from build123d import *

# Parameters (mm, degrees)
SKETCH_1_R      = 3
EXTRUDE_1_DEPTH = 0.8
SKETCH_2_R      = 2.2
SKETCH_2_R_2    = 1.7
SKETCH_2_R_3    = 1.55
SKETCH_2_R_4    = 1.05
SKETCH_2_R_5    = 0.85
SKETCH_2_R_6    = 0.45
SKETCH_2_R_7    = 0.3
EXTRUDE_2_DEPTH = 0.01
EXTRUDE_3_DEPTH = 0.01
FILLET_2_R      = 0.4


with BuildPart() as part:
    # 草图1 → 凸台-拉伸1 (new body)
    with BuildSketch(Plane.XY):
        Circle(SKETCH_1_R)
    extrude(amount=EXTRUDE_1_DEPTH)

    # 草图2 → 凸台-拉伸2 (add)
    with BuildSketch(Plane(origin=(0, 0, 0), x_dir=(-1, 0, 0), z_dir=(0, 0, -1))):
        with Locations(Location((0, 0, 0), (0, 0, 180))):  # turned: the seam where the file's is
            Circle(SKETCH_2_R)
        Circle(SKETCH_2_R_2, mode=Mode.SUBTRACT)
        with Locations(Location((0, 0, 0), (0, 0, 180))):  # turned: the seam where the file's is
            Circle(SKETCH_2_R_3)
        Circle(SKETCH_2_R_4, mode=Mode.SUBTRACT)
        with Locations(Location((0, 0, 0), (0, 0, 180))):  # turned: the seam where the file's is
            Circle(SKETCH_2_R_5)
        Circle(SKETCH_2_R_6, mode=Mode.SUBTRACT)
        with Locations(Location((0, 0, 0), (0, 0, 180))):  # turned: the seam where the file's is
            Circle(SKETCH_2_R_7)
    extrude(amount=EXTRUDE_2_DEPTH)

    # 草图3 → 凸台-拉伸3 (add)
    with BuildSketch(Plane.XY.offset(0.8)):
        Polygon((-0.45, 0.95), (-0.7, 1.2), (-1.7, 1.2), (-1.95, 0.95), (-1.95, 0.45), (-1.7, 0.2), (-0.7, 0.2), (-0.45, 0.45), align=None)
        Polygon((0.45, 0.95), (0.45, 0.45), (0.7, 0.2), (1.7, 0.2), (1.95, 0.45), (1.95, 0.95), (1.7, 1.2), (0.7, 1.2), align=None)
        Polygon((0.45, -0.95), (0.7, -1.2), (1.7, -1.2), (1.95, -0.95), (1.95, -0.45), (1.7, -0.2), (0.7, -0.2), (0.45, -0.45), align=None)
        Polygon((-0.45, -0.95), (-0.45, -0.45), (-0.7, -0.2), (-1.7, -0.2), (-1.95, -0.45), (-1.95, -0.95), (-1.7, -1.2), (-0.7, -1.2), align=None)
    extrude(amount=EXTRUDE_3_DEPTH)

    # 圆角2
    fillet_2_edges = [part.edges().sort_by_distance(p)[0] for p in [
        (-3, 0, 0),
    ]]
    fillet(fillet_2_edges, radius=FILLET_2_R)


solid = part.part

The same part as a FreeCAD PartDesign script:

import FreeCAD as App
import Part
import Sketcher
Q = App.Units.Quantity


def edges_at(feature, points):
    """Names of the edges that pass closest to the given points."""
    edges = feature.Shape.Edges
    near = lambda p: min(range(len(edges)), key=lambda i: edges[i].distToShape(Part.Vertex(*p))[0])
    return sorted({f"Edge{near(p) + 1}" for p in points})

doc = App.newDocument("Part")
body = doc.addObject("PartDesign::Body", "Body")

# Sketch on XY plane
sketch1 = body.newObject("Sketcher::SketchObject", "Sketch")
sketch1.AttachmentSupport = (doc.getObject("XY_Plane"), [""])
sketch1.MapMode = "FlatFace"
sketch1.addGeometry(Part.Circle(App.Vector(0, 0, 0), App.Vector(0, 0, 1), 3), False)
sketch1.addConstraint(Sketcher.Constraint("Coincident", 0, 3, -1, 1))
sketch1.addConstraint(Sketcher.Constraint("Diameter", 0, Q("6 mm")))
pad1 = body.newObject("PartDesign::Pad", "Pad")
pad1.Profile = sketch1
pad1.Length = 0.8

# Sketch on XY plane
sketch2 = body.newObject("Sketcher::SketchObject", "Sketch001")
sketch2.AttachmentSupport = (doc.getObject("XY_Plane"), [""])
sketch2.MapMode = "FlatFace"
sketch2.addGeometry(Part.Circle(App.Vector(0, 0, 0), App.Vector(0, 0, 1), 2.2), False)
sketch2.addGeometry(Part.Circle(App.Vector(0, 0, 0), App.Vector(0, 0, 1), 1.7), False)
sketch2.addGeometry(Part.Circle(App.Vector(0, 0, 0), App.Vector(0, 0, 1), 1.55), False)
sketch2.addGeometry(Part.Circle(App.Vector(0, 0, 0), App.Vector(0, 0, 1), 1.05), False)
sketch2.addGeometry(Part.Circle(App.Vector(0, 0, 0), App.Vector(0, 0, 1), 0.85), False)
sketch2.addGeometry(Part.Circle(App.Vector(0, 0, 0), App.Vector(0, 0, 1), 0.45), False)
sketch2.addGeometry(Part.Circle(App.Vector(0, 0, 0), App.Vector(0, 0, 1), 0.3), False)
sketch2.addConstraint(Sketcher.Constraint("Coincident", 0, 3, -1, 1))
sketch2.addConstraint(Sketcher.Constraint("Coincident", 1, 3, -1, 1))
sketch2.addConstraint(Sketcher.Constraint("Coincident", 2, 3, -1, 1))
sketch2.addConstraint(Sketcher.Constraint("Coincident", 3, 3, -1, 1))
sketch2.addConstraint(Sketcher.Constraint("Coincident", 4, 3, -1, 1))
sketch2.addConstraint(Sketcher.Constraint("Coincident", 5, 3, -1, 1))
sketch2.addConstraint(Sketcher.Constraint("Coincident", 6, 3, -1, 1))
sketch2.addConstraint(Sketcher.Constraint("Diameter", 0, Q("4.4 mm")))
sketch2.addConstraint(Sketcher.Constraint("Diameter", 1, Q("3.4 mm")))
sketch2.addConstraint(Sketcher.Constraint("Diameter", 2, Q("3.1 mm")))
sketch2.addConstraint(Sketcher.Constraint("Diameter", 3, Q("2.1 mm")))
sketch2.addConstraint(Sketcher.Constraint("Diameter", 4, Q("1.7 mm")))
sketch2.addConstraint(Sketcher.Constraint("Diameter", 5, Q("0.9 mm")))
sketch2.addConstraint(Sketcher.Constraint("Diameter", 6, Q("0.6 mm")))
pad2 = body.newObject("PartDesign::Pad", "Pad001")
pad2.Profile = sketch2
pad2.Length = 0.01
pad2.Reversed = True

# Sketch on XY plane
sketch3 = body.newObject("Sketcher::SketchObject", "Sketch002")
sketch3.AttachmentSupport = (doc.getObject("XY_Plane"), [""])
sketch3.MapMode = "FlatFace"
sketch3.AttachmentOffset = App.Placement(App.Vector(0, 0, 0.8), App.Rotation())
sketch3.addGeometry(Part.LineSegment(App.Vector(-0.45, 0.95, 0), App.Vector(-0.7, 1.2, 0)), False)
sketch3.addGeometry(Part.LineSegment(App.Vector(-0.7, 1.2, 0), App.Vector(-1.7, 1.2, 0)), False)
sketch3.addGeometry(Part.LineSegment(App.Vector(-1.7, 1.2, 0), App.Vector(-1.95, 0.95, 0)), False)
sketch3.addGeometry(Part.LineSegment(App.Vector(-1.95, 0.95, 0), App.Vector(-1.95, 0.45, 0)), False)
sketch3.addGeometry(Part.LineSegment(App.Vector(-1.95, 0.45, 0), App.Vector(-1.7, 0.2, 0)), False)
sketch3.addGeometry(Part.LineSegment(App.Vector(-1.7, 0.2, 0), App.Vector(-0.7, 0.2, 0)), False)
sketch3.addGeometry(Part.LineSegment(App.Vector(-0.7, 0.2, 0), App.Vector(-0.45, 0.45, 0)), False)
sketch3.addGeometry(Part.LineSegment(App.Vector(-0.45, 0.45, 0), App.Vector(-0.45, 0.95, 0)), False)
sketch3.addGeometry(Part.LineSegment(App.Vector(0.45, 0.95, 0), App.Vector(0.45, 0.45, 0)), False)
sketch3.addGeometry(Part.LineSegment(App.Vector(0.45, 0.45, 0), App.Vector(0.7, 0.2, 0)), False)
sketch3.addGeometry(Part.LineSegment(App.Vector(0.7, 0.2, 0), App.Vector(1.7, 0.2, 0)), False)
sketch3.addGeometry(Part.LineSegment(App.Vector(1.7, 0.2, 0), App.Vector(1.95, 0.45, 0)), False)
sketch3.addGeometry(Part.LineSegment(App.Vector(1.95, 0.45, 0), App.Vector(1.95, 0.95, 0)), False)
sketch3.addGeometry(Part.LineSegment(App.Vector(1.95, 0.95, 0), App.Vector(1.7, 1.2, 0)), False)
sketch3.addGeometry(Part.LineSegment(App.Vector(1.7, 1.2, 0), App.Vector(0.7, 1.2, 0)), False)
sketch3.addGeometry(Part.LineSegment(App.Vector(0.7, 1.2, 0), App.Vector(0.45, 0.95, 0)), False)
sketch3.addGeometry(Part.LineSegment(App.Vector(0.45, -0.95, 0), App.Vector(0.7, -1.2, 0)), False)
sketch3.addGeometry(Part.LineSegment(App.Vector(0.7, -1.2, 0), App.Vector(1.7, -1.2, 0)), False)
sketch3.addGeometry(Part.LineSegment(App.Vector(1.7, -1.2, 0), App.Vector(1.95, -0.95, 0)), False)
sketch3.addGeometry(Part.LineSegment(App.Vector(1.95, -0.95, 0), App.Vector(1.95, -0.45, 0)), False)
sketch3.addGeometry(Part.LineSegment(App.Vector(1.95, -0.45, 0), App.Vector(1.7, -0.2, 0)), False)
sketch3.addGeometry(Part.LineSegment(App.Vector(1.7, -0.2, 0), App.Vector(0.7, -0.2, 0)), False)
sketch3.addGeometry(Part.LineSegment(App.Vector(0.7, -0.2, 0), App.Vector(0.45, -0.45, 0)), False)
sketch3.addGeometry(Part.LineSegment(App.Vector(0.45, -0.45, 0), App.Vector(0.45, -0.95, 0)), False)
sketch3.addGeometry(Part.LineSegment(App.Vector(-0.45, -0.95, 0), App.Vector(-0.45, -0.45, 0)), False)
sketch3.addGeometry(Part.LineSegment(App.Vector(-0.45, -0.45, 0), App.Vector(-0.7, -0.2, 0)), False)
sketch3.addGeometry(Part.LineSegment(App.Vector(-0.7, -0.2, 0), App.Vector(-1.7, -0.2, 0)), False)
sketch3.addGeometry(Part.LineSegment(App.Vector(-1.7, -0.2, 0), App.Vector(-1.95, -0.45, 0)), False)
sketch3.addGeometry(Part.LineSegment(App.Vector(-1.95, -0.45, 0), App.Vector(-1.95, -0.95, 0)), False)
sketch3.addGeometry(Part.LineSegment(App.Vector(-1.95, -0.95, 0), App.Vector(-1.7, -1.2, 0)), False)
sketch3.addGeometry(Part.LineSegment(App.Vector(-1.7, -1.2, 0), App.Vector(-0.7, -1.2, 0)), False)
sketch3.addGeometry(Part.LineSegment(App.Vector(-0.7, -1.2, 0), App.Vector(-0.45, -0.95, 0)), False)
sketch3.addConstraint(Sketcher.Constraint("Coincident", 0, 2, 1, 1))
sketch3.addConstraint(Sketcher.Constraint("Coincident", 1, 2, 2, 1))
sketch3.addConstraint(Sketcher.Constraint("Coincident", 2, 2, 3, 1))
sketch3.addConstraint(Sketcher.Constraint("Coincident", 3, 2, 4, 1))
sketch3.addConstraint(Sketcher.Constraint("Coincident", 4, 2, 5, 1))
sketch3.addConstraint(Sketcher.Constraint("Coincident", 5, 2, 6, 1))
sketch3.addConstraint(Sketcher.Constraint("Coincident", 6, 2, 7, 1))
sketch3.addConstraint(Sketcher.Constraint("Coincident", 7, 2, 0, 1))
sketch3.addConstraint(Sketcher.Constraint("Coincident", 8, 2, 9, 1))
sketch3.addConstraint(Sketcher.Constraint("Coincident", 9, 2, 10, 1))
sketch3.addConstraint(Sketcher.Constraint("Coincident", 10, 2, 11, 1))
sketch3.addConstraint(Sketcher.Constraint("Coincident", 11, 2, 12, 1))
sketch3.addConstraint(Sketcher.Constraint("Coincident", 12, 2, 13, 1))
sketch3.addConstraint(Sketcher.Constraint("Coincident", 13, 2, 14, 1))
sketch3.addConstraint(Sketcher.Constraint("Coincident", 14, 2, 15, 1))
sketch3.addConstraint(Sketcher.Constraint("Coincident", 15, 2, 8, 1))
sketch3.addConstraint(Sketcher.Constraint("Coincident", 16, 2, 17, 1))
sketch3.addConstraint(Sketcher.Constraint("Coincident", 17, 2, 18, 1))
sketch3.addConstraint(Sketcher.Constraint("Coincident", 18, 2, 19, 1))
sketch3.addConstraint(Sketcher.Constraint("Coincident", 19, 2, 20, 1))
sketch3.addConstraint(Sketcher.Constraint("Coincident", 20, 2, 21, 1))
sketch3.addConstraint(Sketcher.Constraint("Coincident", 21, 2, 22, 1))
sketch3.addConstraint(Sketcher.Constraint("Coincident", 22, 2, 23, 1))
sketch3.addConstraint(Sketcher.Constraint("Coincident", 23, 2, 16, 1))
sketch3.addConstraint(Sketcher.Constraint("Coincident", 24, 2, 25, 1))
sketch3.addConstraint(Sketcher.Constraint("Coincident", 25, 2, 26, 1))
sketch3.addConstraint(Sketcher.Constraint("Coincident", 26, 2, 27, 1))
sketch3.addConstraint(Sketcher.Constraint("Coincident", 27, 2, 28, 1))
sketch3.addConstraint(Sketcher.Constraint("Coincident", 28, 2, 29, 1))
sketch3.addConstraint(Sketcher.Constraint("Coincident", 29, 2, 30, 1))
sketch3.addConstraint(Sketcher.Constraint("Coincident", 30, 2, 31, 1))
sketch3.addConstraint(Sketcher.Constraint("Coincident", 31, 2, 24, 1))
sketch3.addConstraint(Sketcher.Constraint("Horizontal", 1))
sketch3.addConstraint(Sketcher.Constraint("Vertical", 3))
sketch3.addConstraint(Sketcher.Constraint("Horizontal", 5))
sketch3.addConstraint(Sketcher.Constraint("Vertical", 7))
sketch3.addConstraint(Sketcher.Constraint("Vertical", 8))
sketch3.addConstraint(Sketcher.Constraint("Horizontal", 10))
sketch3.addConstraint(Sketcher.Constraint("Vertical", 12))
sketch3.addConstraint(Sketcher.Constraint("Horizontal", 14))
sketch3.addConstraint(Sketcher.Constraint("Horizontal", 17))
sketch3.addConstraint(Sketcher.Constraint("Vertical", 19))
sketch3.addConstraint(Sketcher.Constraint("Horizontal", 21))
sketch3.addConstraint(Sketcher.Constraint("Vertical", 23))
sketch3.addConstraint(Sketcher.Constraint("Vertical", 24))
sketch3.addConstraint(Sketcher.Constraint("Horizontal", 26))
sketch3.addConstraint(Sketcher.Constraint("Vertical", 28))
sketch3.addConstraint(Sketcher.Constraint("Horizontal", 30))
sketch3.addConstraint(Sketcher.Constraint("Symmetric", 0, 2, 16, 2, -1, 1))
sketch3.addConstraint(Sketcher.Constraint("Symmetric", 2, 2, 18, 2, -1, 1))
sketch3.addConstraint(Sketcher.Constraint("Symmetric", 4, 2, 20, 2, -1, 1))
sketch3.addConstraint(Sketcher.Constraint("Symmetric", 6, 2, 22, 2, -1, 1))
sketch3.addConstraint(Sketcher.Constraint("Symmetric", 8, 2, 24, 2, -1, 1))
sketch3.addConstraint(Sketcher.Constraint("Symmetric", 9, 2, 25, 2, -1, 1))
sketch3.addConstraint(Sketcher.Constraint("Symmetric", 11, 2, 27, 2, -1, 1))
sketch3.addConstraint(Sketcher.Constraint("Symmetric", 13, 2, 29, 2, -1, 1))
sketch3.addConstraint(Sketcher.Constraint("Symmetric", 6, 2, 8, 2, -2))
sketch3.addConstraint(Sketcher.Constraint("Symmetric", 5, 2, 9, 2, -2))
sketch3.addConstraint(Sketcher.Constraint("Symmetric", 3, 2, 11, 2, -2))
sketch3.addConstraint(Sketcher.Constraint("Symmetric", 1, 2, 13, 2, -2))
sketch3.addConstraint(Sketcher.Constraint("Perpendicular", 0, 2))
sketch3.addConstraint(Sketcher.Constraint("Perpendicular", 2, 4))
sketch3.addConstraint(Sketcher.Constraint("Perpendicular", 4, 6))
sketch3.addConstraint(Sketcher.Constraint("Perpendicular", 6, 9))
sketch3.addConstraint(Sketcher.Constraint("Perpendicular", 9, 11))
sketch3.addConstraint(Sketcher.Constraint("Perpendicular", 11, 13))
sketch3.addConstraint(Sketcher.Constraint("Perpendicular", 13, 15))
sketch3.addConstraint(Sketcher.Constraint("Perpendicular", 15, 16))
sketch3.addConstraint(Sketcher.Constraint("Perpendicular", 16, 18))
sketch3.addConstraint(Sketcher.Constraint("Perpendicular", 18, 20))
sketch3.addConstraint(Sketcher.Constraint("Perpendicular", 20, 22))
sketch3.addConstraint(Sketcher.Constraint("Perpendicular", 25, 27))
sketch3.addConstraint(Sketcher.Constraint("Perpendicular", 27, 29))
sketch3.addConstraint(Sketcher.Constraint("Perpendicular", 29, 31))
sketch3.addConstraint(Sketcher.Constraint("Horizontal", 3, 2, 6, 2))
sketch3.addConstraint(Sketcher.Constraint("Horizontal", 2, 2, 7, 2))
sketch3.addConstraint(Sketcher.Constraint("Horizontal", 12, 2, 15, 2))
sketch3.addConstraint(Sketcher.Constraint("Horizontal", 28, 2, 31, 2))
sketch3.addConstraint(Sketcher.Constraint("Vertical", 1, 2, 4, 2))
sketch3.addConstraint(Sketcher.Constraint("DistanceX", 1, 2, 1, 1, Q("1 mm")))
sketch3.addConstraint(Sketcher.Constraint("DistanceY", 3, 2, 3, 1, Q("0.5 mm")))
sketch3.addConstraint(Sketcher.Constraint("DistanceY", 4, 2, 1, 2, Q("1 mm")))
sketch3.addConstraint(Sketcher.Constraint("DistanceX", 0, 2, -1, 1, Q("0.7 mm")))
sketch3.addConstraint(Sketcher.Constraint("DistanceY", -1, 1, 0, 2, Q("1.2 mm")))
pad3 = body.newObject("PartDesign::Pad", "Pad002")
pad3.Profile = sketch3
pad3.Length = 0.01
doc.recompute()

fillet = body.newObject("PartDesign::Fillet", "Fillet")
fillet.Base = (pad3, edges_at(pad3, [(-3, 0, 0)]))
fillet.Radius = 0.4

doc.recompute()
